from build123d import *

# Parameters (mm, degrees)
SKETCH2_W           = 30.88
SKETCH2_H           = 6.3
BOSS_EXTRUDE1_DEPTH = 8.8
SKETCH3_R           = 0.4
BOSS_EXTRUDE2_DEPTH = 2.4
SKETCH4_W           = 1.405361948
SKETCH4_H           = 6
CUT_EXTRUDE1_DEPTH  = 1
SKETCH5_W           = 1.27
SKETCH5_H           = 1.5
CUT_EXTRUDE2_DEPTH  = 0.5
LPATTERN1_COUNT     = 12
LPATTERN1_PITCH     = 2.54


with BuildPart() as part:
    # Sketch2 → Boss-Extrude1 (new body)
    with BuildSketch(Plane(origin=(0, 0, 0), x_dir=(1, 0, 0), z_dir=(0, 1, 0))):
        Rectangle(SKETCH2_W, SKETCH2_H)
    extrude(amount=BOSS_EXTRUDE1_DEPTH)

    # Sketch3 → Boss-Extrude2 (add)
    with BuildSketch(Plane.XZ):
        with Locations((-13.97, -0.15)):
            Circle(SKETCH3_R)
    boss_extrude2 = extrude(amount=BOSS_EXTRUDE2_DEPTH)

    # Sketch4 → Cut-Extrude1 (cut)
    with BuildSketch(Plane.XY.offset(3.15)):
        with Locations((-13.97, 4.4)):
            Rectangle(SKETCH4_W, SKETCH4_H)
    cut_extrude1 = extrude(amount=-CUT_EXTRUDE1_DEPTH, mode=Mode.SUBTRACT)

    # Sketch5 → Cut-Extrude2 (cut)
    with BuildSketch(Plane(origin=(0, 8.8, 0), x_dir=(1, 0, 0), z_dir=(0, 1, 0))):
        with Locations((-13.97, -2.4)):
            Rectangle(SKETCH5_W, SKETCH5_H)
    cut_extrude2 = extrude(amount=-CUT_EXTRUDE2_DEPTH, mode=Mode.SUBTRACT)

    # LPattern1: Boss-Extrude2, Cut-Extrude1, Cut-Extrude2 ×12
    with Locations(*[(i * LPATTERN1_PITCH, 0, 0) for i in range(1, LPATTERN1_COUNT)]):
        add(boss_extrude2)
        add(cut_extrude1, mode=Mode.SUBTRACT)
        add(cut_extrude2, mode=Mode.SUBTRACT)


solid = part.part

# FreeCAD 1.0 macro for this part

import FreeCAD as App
import Part
import Sketcher
Q = App.Units.Quantity


def add_polygon(sketch, points):
    """Adds a closed chain of lines whose ends are joined by coincident constraints."""
    first, n = sketch.GeometryCount, len(points)
    for a, b in zip(points, points[1:] + points[:1]):
        sketch.addGeometry(Part.LineSegment(App.Vector(*a, 0), App.Vector(*b, 0)), False)
    for i in range(n):
        sketch.addConstraint(Sketcher.Constraint("Coincident", first + i, 2, first + (i + 1) % n, 1))

doc = App.newDocument("Part")
body = doc.addObject("PartDesign::Body", "Body")

# Sketch on XZ plane
sketch1 = body.newObject("Sketcher::SketchObject", "Sketch")
sketch1.AttachmentSupport = (doc.getObject("XZ_Plane"), [""])
sketch1.MapMode = "FlatFace"
add_polygon(sketch1, [(-15, -3), (-15, 3), (15, 3), (15, -3)])  # lines 0-3
sketch1.addConstraint(Sketcher.Constraint("Vertical", 0))
sketch1.addConstraint(Sketcher.Constraint("Horizontal", 1))
sketch1.addConstraint(Sketcher.Constraint("Vertical", 2))
sketch1.addConstraint(Sketcher.Constraint("Horizontal", 3))
sketch1.addConstraint(Sketcher.Constraint("Symmetric", 0, 2, 2, 2, -1, 1))
sketch1.addConstraint(Sketcher.Constraint("DistanceY", 0, 1, 0, 2, Q("6.3 mm")))
sketch1.addConstraint(Sketcher.Constraint("DistanceX", 1, 1, 1, 2, Q("30.88 mm")))
pad1 = body.newObject("PartDesign::Pad", "Pad")
pad1.Profile = sketch1
pad1.Length = 8.8
pad1.Reversed = True

# Sketch on XZ plane
sketch2 = body.newObject("Sketcher::SketchObject", "Sketch001")
sketch2.AttachmentSupport = (doc.getObject("XZ_Plane"), [""])
sketch2.MapMode = "FlatFace"
sketch2.addGeometry(Part.Circle(App.Vector(-13.97, -0.15, 0), App.Vector(0, 0, 1), 0.4), False)
sketch2.addConstraint(Sketcher.Constraint("Diameter", 0, Q("0.8 mm")))
sketch2.addConstraint(Sketcher.Constraint("DistanceX", 0, 3, -1, 1, Q("13.97 mm")))
sketch2.addConstraint(Sketcher.Constraint("DistanceY", 0, 3, -1, 1, Q("0.15 mm")))
pad2 = body.newObject("PartDesign::Pad", "Pad001")
pad2.Profile = sketch2
pad2.Length = 2.4

# Sketch on XY plane
sketch3 = body.newObject("Sketcher::SketchObject", "Sketch002")
sketch3.AttachmentSupport = (doc.getObject("XY_Plane"), [""])
sketch3.MapMode = "FlatFace"
sketch3.AttachmentOffset = App.Placement(App.Vector(0, 0, 3.15), App.Rotation())
add_polygon(sketch3, [(-14.7, 7.4), (-14.7, 1.4), (-13.3, 1.4), (-13.3, 7.4)])  # lines 0-3
sketch3.addConstraint(Sketcher.Constraint("Vertical", 0))
sketch3.addConstraint(Sketcher.Constraint("Horizontal", 1))
sketch3.addConstraint(Sketcher.Constraint("Vertical", 2))
sketch3.addConstraint(Sketcher.Constraint("Horizontal", 3))
sketch3.addConstraint(Sketcher.Constraint("DistanceY", 0, 2, 0, 1, Q("6 mm")))
sketch3.addConstraint(Sketcher.Constraint("DistanceY", -1, 1, 0, 2, Q("1.4 mm")))
sketch3.addConstraint(Sketcher.Constraint("DistanceX", 1, 1, 1, 2, Q("1.405362 mm")))
sketch3.addConstraint(Sketcher.Constraint("DistanceX", 0, 2, -1, 1, Q("14.672681 mm")))
pocket1 = body.newObject("PartDesign::Pocket", "Pocket")
pocket1.Profile = sketch3
pocket1.Length = 1

# Sketch on XZ plane
sketch4 = body.newObject("Sketcher::SketchObject", "Sketch003")
sketch4.AttachmentSupport = (doc.getObject("XZ_Plane"), [""])
sketch4.MapMode = "FlatFace"
sketch4.AttachmentOffset = App.Placement(App.Vector(0, 0, -8.8), App.Rotation())
add_polygon(sketch4, [(-14.6, 1.6), (-14.6, 3.1), (-13.3, 3.1), (-13.3, 1.6)])  # lines 0-3
sketch4.addConstraint(Sketcher.Constraint("Vertical", 0))
sketch4.addConstraint(Sketcher.Constraint("Horizontal", 1))
sketch4.addConstraint(Sketcher.Constraint("Vertical", 2))
sketch4.addConstraint(Sketcher.Constraint("Horizontal", 3))
sketch4.addConstraint(Sketcher.Constraint("DistanceY", 0, 1, 0, 2, Q("1.5 mm")))
sketch4.addConstraint(Sketcher.Constraint("DistanceX", 1, 1, 1, 2, Q("1.27 mm")))
sketch4.addConstraint(Sketcher.Constraint("DistanceY", -1, 1, 0, 2, Q("3.15 mm")))
sketch4.addConstraint(Sketcher.Constraint("DistanceX", 0, 2, -1, 1, Q("14.605 mm")))
pocket2 = body.newObject("PartDesign::Pocket", "Pocket001")
pocket2.Profile = sketch4
pocket2.Length = 0.5
pocket2.Reversed = True
doc.recompute()

linearpattern = body.newObject("PartDesign::LinearPattern", "LinearPattern")
linearpattern.Originals = [pad2, pocket1, pocket2]
linearpattern.Direction = (doc.getObject("X_Axis"), [""])
linearpattern.Mode = "offset"
linearpattern.Offset = 2.54
linearpattern.Occurrences = 12
body.Tip = linearpattern

doc.recompute()
